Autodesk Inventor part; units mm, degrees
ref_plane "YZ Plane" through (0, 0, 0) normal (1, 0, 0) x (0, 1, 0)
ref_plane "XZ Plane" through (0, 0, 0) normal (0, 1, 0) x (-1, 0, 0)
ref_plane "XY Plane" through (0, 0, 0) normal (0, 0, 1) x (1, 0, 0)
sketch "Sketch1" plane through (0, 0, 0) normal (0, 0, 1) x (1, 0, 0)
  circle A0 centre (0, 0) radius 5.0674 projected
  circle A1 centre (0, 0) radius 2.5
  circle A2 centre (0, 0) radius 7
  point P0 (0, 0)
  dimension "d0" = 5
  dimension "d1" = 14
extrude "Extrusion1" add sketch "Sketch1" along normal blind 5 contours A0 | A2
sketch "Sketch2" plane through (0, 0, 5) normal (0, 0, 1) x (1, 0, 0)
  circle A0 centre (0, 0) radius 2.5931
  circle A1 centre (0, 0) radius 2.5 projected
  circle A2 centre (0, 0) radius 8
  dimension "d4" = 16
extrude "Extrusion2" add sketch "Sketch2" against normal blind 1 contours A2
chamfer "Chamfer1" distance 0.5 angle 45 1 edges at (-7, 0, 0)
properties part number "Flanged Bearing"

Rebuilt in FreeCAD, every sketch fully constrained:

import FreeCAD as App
import Part
import Sketcher


def edges_at(feature, points):
    """Names of the edges that pass closest to the given points."""
    edges = feature.Shape.Edges
    near = lambda p: min(range(len(edges)), key=lambda i: edges[i].distToShape(Part.Vertex(*p))[0])
    return sorted({f"Edge{near(p) + 1}" for p in points})

doc = App.newDocument("Part")
body = doc.addObject("PartDesign::Body", "Body")

# Sketch on XY plane
sketch1 = doc.addObject("Sketcher::SketchObject", "Sketch")
body.addObject(sketch1)
sketch1.AttachmentSupport = (doc.XY_Plane, [""])
sketch1.MapMode = "FlatFace"
sketch1.addGeometry(Part.Circle(App.Vector(0, 0, 0), App.Vector(0, 0, 1), 7), False)
sketch1.addGeometry(Part.Circle(App.Vector(0, 0, 0), App.Vector(0, 0, 1), 2.5), False)
sketch1.addConstraint(Sketcher.Constraint("Coincident", 0, 3, -1, 1))
sketch1.addConstraint(Sketcher.Constraint("Coincident", 1, 3, -1, 1))
sketch1.addConstraint(Sketcher.Constraint("Diameter", 0, 14.0))
sketch1.addConstraint(Sketcher.Constraint("Diameter", 1, 5.0))
pad1 = doc.addObject("PartDesign::Pad", "Pad")
body.addObject(pad1)
pad1.Profile = sketch1
pad1.Length = 5

# Sketch on XY plane
sketch2 = doc.addObject("Sketcher::SketchObject", "Sketch001")
body.addObject(sketch2)
sketch2.AttachmentSupport = (doc.XY_Plane, [""])
sketch2.MapMode = "FlatFace"
sketch2.AttachmentOffset = App.Placement(App.Vector(0, 0, 5), App.Rotation())
sketch2.addGeometry(Part.Circle(App.Vector(0, 0, 0), App.Vector(0, 0, 1), 8), False)
sketch2.addGeometry(Part.Circle(App.Vector(0, 0, 0), App.Vector(0, 0, 1), 2.5931), False)
sketch2.addConstraint(Sketcher.Constraint("Coincident", 0, 3, -1, 1))
sketch2.addConstraint(Sketcher.Constraint("Coincident", 1, 3, -1, 1))
sketch2.addConstraint(Sketcher.Constraint("Diameter", 0, 16.0))
sketch2.addConstraint(Sketcher.Constraint("Diameter", 1, 5.1862))
pad2 = doc.addObject("PartDesign::Pad", "Pad001")
body.addObject(pad2)
pad2.Profile = sketch2
pad2.Length = 1
pad2.Reversed = True
doc.recompute()

chamfer = doc.addObject("PartDesign::Chamfer", "Chamfer")
body.addObject(chamfer)
chamfer.Base = (pad2, edges_at(pad2, [(-7, 0, 0)]))
chamfer.Size = 0.5

doc.recompute()
